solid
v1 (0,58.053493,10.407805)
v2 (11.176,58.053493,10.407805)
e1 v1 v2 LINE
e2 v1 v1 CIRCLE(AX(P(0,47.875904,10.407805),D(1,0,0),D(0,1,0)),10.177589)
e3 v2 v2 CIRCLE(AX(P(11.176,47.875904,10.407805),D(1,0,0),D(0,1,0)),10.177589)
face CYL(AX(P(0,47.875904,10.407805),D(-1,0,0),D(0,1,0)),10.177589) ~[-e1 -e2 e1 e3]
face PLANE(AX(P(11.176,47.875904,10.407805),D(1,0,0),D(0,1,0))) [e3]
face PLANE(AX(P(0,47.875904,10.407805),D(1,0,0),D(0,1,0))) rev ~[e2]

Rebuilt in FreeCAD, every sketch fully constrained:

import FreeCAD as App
import Part
import Sketcher
from FreeCAD import Vector
Q = App.Units.Quantity

doc = App.newDocument("Part")
body = doc.addObject("PartDesign::Body", "Body")

# Sketch on YZ plane
sketch1 = body.newObject("Sketcher::SketchObject", "Sketch")
sketch1.AttachmentSupport = (doc.getObject("YZ_Plane"), [""])
sketch1.MapMode = "FlatFace"
sketch1.addGeometry(Part.Circle(Vector(48, 10, 0), Vector(0, 0, 1), 10), False)
sketch1.addConstraint([
    Sketcher.Constraint("Diameter", 0, 20.355178),
    Sketcher.Constraint("DistanceX", -1, 1, 0, 3, 47.875904),
    Sketcher.Constraint("DistanceY", -1, 1, 0, 3, 10.407805),
])
pad1 = body.newObject("PartDesign::Pad", "Pad")
pad1.Profile = sketch1
pad1.Length = Q("0.44 in")
body2 = doc.addObject("PartDesign::Body", "Body001")

# Sketch on YZ plane
sketch2 = body2.newObject("Sketcher::SketchObject", "Sketch001")
sketch2.AttachmentSupport = (doc.getObject("YZ_Plane001"), [""])
sketch2.MapMode = "FlatFace"
sketch2.addGeometry(Part.Circle(Vector(-42, 10, 0), Vector(0, 0, 1), 10), False)
sketch2.addConstraint([
    Sketcher.Constraint("Diameter", 0, 20.080508),
    Sketcher.Constraint("DistanceX", 0, 3, -1, 1, 41.587934),
    Sketcher.Constraint("DistanceY", -1, 1, 0, 3, 10.073202),
])
pad2 = body2.newObject("PartDesign::Pad", "Pad001")
pad2.Profile = sketch2
pad2.Length = Q("0.44 in")
body2.Visibility = False

doc.recompute()
